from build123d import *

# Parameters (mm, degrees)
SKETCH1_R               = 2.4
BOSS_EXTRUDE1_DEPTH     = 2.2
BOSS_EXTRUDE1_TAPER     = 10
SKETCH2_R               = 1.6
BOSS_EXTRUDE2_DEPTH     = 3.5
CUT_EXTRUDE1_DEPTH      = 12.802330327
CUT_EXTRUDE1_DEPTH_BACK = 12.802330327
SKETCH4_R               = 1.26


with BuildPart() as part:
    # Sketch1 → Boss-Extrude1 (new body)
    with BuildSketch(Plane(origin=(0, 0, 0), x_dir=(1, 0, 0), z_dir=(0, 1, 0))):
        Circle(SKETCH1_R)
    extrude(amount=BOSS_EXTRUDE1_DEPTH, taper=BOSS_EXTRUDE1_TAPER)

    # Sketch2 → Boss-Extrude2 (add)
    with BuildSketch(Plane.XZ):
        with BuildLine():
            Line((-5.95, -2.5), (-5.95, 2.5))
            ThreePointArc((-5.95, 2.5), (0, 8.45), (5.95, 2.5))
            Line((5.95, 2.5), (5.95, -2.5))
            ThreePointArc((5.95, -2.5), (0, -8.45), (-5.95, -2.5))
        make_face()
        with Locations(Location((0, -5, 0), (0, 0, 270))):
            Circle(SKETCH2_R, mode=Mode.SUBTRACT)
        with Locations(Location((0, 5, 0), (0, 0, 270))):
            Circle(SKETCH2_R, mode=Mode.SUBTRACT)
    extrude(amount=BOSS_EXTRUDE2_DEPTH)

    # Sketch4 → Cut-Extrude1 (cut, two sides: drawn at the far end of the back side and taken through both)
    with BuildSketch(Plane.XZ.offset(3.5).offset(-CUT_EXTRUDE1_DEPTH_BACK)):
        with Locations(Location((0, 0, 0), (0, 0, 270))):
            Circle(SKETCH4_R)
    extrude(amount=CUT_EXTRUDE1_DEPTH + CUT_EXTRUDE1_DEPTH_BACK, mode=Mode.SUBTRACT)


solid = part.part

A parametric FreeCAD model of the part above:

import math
import FreeCAD as App
import Part
import Sketcher
from FreeCAD import Vector
Q = App.Units.Quantity

doc = App.newDocument("Part")
body = doc.addObject("PartDesign::Body", "Body")

# Sketch on XZ plane
sketch1 = body.newObject("Sketcher::SketchObject", "Sketch")
sketch1.AttachmentSupport = (doc.getObject("XZ_Plane"), [""])
sketch1.MapMode = "FlatFace"
sketch1.addGeometry(Part.Circle(Vector(0, 0, 0), Vector(0, 0, 1), 2.4), False)
sketch1.addConstraint(Sketcher.Constraint("Coincident", 0, 3, -1, 1))
sketch1.addConstraint(Sketcher.Constraint("Diameter", 0, Q("4.8 mm")))
pad1 = body.newObject("PartDesign::Pad", "Pad")
pad1.Profile = sketch1
pad1.Length = 2.2
pad1.Reversed = True
pad1.TaperAngle = -10

# Sketch on XZ plane
sketch2 = body.newObject("Sketcher::SketchObject", "Sketch001")
sketch2.AttachmentSupport = (doc.getObject("XZ_Plane"), [""])
sketch2.MapMode = "FlatFace"
sketch2.addGeometry(Part.LineSegment(Vector(-6, 2.5, 0), Vector(-6, -2.5, 0)), False)
sketch2.addGeometry(Part.ArcOfCircle(Part.Circle(Vector(0, -2.5, 0), Vector(0, 0, 1), 6), math.radians(180), math.radians(360)), False)
sketch2.addGeometry(Part.LineSegment(Vector(6, -2.5, 0), Vector(6, 2.5, 0)), False)
sketch2.addGeometry(Part.ArcOfCircle(Part.Circle(Vector(0, 2.5, 0), Vector(0, 0, 1), 6), math.radians(0), math.radians(180)), False)
sketch2.addGeometry(Part.Circle(Vector(0, -5, 0), Vector(0, 0, 1), 1.6), False)
sketch2.addGeometry(Part.Circle(Vector(0, 5, 0), Vector(0, 0, 1), 1.6), False)
sketch2.addConstraint(Sketcher.Constraint("Tangent", 0, 2, 1, 1))
sketch2.addConstraint(Sketcher.Constraint("Tangent", 1, 2, 2, 1))
sketch2.addConstraint(Sketcher.Constraint("Tangent", 2, 2, 3, 1))
sketch2.addConstraint(Sketcher.Constraint("Tangent", 3, 2, 0, 1))
sketch2.addConstraint(Sketcher.Constraint("Vertical", 0))
sketch2.addConstraint(Sketcher.Constraint("Vertical", 2))
sketch2.addConstraint(Sketcher.Constraint("Equal", 4, 5))
sketch2.addConstraint(Sketcher.Constraint("Symmetric", 1, 3, 3, 3, -1, 1))
sketch2.addConstraint(Sketcher.Constraint("Symmetric", 4, 3, 5, 3, -1, 1))
sketch2.addConstraint(Sketcher.Constraint("PointOnObject", 4, 3, -2))
sketch2.addConstraint(Sketcher.Constraint("Diameter", 4, Q("3.2 mm")))
sketch2.addConstraint(Sketcher.Constraint("DistanceY", 0, 2, 0, 1, Q("5 mm")))
sketch2.addConstraint(Sketcher.Constraint("Radius", 1, Q("5.95 mm")))
sketch2.addConstraint(Sketcher.Constraint("DistanceY", 4, 3, -1, 1, Q("5 mm")))
pad2 = body.newObject("PartDesign::Pad", "Pad001")
pad2.Profile = sketch2
pad2.Length = 3.5

# Sketch on XZ plane
sketch3 = body.newObject("Sketcher::SketchObject", "Sketch002")
sketch3.AttachmentSupport = (doc.getObject("XZ_Plane"), [""])
sketch3.MapMode = "FlatFace"
sketch3.AttachmentOffset = App.Placement(Vector(0, 0, 3.5), App.Rotation())
sketch3.addGeometry(Part.Circle(Vector(0, 0, 0), Vector(0, 0, 1), 1.3), False)
sketch3.addConstraint(Sketcher.Constraint("Coincident", 0, 3, -1, 1))
sketch3.addConstraint(Sketcher.Constraint("Diameter", 0, Q("2.52 mm")))
pocket1 = body.newObject("PartDesign::Pocket", "Pocket")
pocket1.Profile = sketch3
pocket1.Type = "ThroughAll"
pocket1.Midplane = True

doc.recompute()
